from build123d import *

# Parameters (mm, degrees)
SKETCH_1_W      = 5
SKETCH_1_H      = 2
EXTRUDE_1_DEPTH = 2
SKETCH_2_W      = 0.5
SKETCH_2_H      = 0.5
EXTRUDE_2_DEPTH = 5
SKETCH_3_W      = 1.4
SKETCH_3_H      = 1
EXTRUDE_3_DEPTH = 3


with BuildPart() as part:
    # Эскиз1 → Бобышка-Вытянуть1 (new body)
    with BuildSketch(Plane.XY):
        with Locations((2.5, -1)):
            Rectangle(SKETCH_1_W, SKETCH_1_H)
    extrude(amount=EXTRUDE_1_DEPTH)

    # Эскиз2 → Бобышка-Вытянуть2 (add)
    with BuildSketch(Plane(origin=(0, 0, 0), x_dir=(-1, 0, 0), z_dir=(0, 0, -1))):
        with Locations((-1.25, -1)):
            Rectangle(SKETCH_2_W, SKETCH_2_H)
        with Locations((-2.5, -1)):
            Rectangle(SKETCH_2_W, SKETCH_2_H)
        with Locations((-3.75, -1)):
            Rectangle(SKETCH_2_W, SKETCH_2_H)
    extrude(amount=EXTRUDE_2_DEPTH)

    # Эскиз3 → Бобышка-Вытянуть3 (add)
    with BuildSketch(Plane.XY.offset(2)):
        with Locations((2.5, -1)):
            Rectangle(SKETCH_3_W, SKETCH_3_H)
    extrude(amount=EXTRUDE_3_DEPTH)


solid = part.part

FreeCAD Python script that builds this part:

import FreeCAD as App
import Part
import Sketcher

V = App.Vector
Q = App.Units.Quantity

doc = App.newDocument("Part")
body = doc.addObject("PartDesign::Body", "Body")

sketch1 = body.newObject("Sketcher::SketchObject", "Sketch")
sketch1.AttachmentSupport = (doc.getObject("XY_Plane"), [""])
sketch1.MapMode = "FlatFace"
sketch1.addGeometry([
    Part.LineSegment(V(0, 0, 0), V(0, -2, 0)),
    Part.LineSegment(V(0, -2, 0), V(5, -2, 0)),
    Part.LineSegment(V(5, -2, 0), V(5, 0, 0)),
    Part.LineSegment(V(5, 0, 0), V(0, 0, 0)),
], False)
sketch1.addConstraint([
    Sketcher.Constraint("Coincident", 0, 2, 1, 1),
    Sketcher.Constraint("Coincident", 1, 2, 2, 1),
    Sketcher.Constraint("Coincident", 2, 2, 3, 1),
    Sketcher.Constraint("Coincident", 3, 2, 0, 1),
    Sketcher.Constraint("Vertical", 0),
    Sketcher.Constraint("Horizontal", 1),
    Sketcher.Constraint("Vertical", 2),
    Sketcher.Constraint("Horizontal", 3),
    Sketcher.Constraint("Coincident", 3, 2, -1, 1),
    Sketcher.Constraint("DistanceX", 1, 1, 1, 2, Q("5 mm")),
    Sketcher.Constraint("DistanceY", 0, 2, 0, 1, Q("2 mm")),
])
pad1 = body.newObject("PartDesign::Pad", "Pad")
pad1.Profile = sketch1
pad1.Length = 2

sketch2 = body.newObject("Sketcher::SketchObject", "Sketch001")
sketch2.AttachmentSupport = (doc.getObject("XY_Plane"), [""])
sketch2.MapMode = "FlatFace"
sketch2.addGeometry([
    Part.LineSegment(V(1.5, -0.8, 0), V(1.5, -1.2, 0)),
    Part.LineSegment(V(1.5, -1.2, 0), V(1, -1.2, 0)),
    Part.LineSegment(V(1, -1.2, 0), V(1, -0.8, 0)),
    Part.LineSegment(V(1, -0.8, 0), V(1.5, -0.8, 0)),
    Part.LineSegment(V(2.8, -0.8, 0), V(2.8, -1.2, 0)),
    Part.LineSegment(V(2.8, -1.2, 0), V(2.2, -1.2, 0)),
    Part.LineSegment(V(2.2, -1.2, 0), V(2.2, -0.8, 0)),
    Part.LineSegment(V(2.2, -0.8, 0), V(2.8, -0.8, 0)),
    Part.LineSegment(V(4, -0.8, 0), V(4, -1.2, 0)),
    Part.LineSegment(V(4, -1.2, 0), V(3.5, -1.2, 0)),
    Part.LineSegment(V(3.5, -1.2, 0), V(3.5, -0.8, 0)),
    Part.LineSegment(V(3.5, -0.8, 0), V(4, -0.8, 0)),
], False)
sketch2.addConstraint([
    Sketcher.Constraint("Coincident", 0, 2, 1, 1),
    Sketcher.Constraint("Coincident", 1, 2, 2, 1),
    Sketcher.Constraint("Coincident", 2, 2, 3, 1),
    Sketcher.Constraint("Coincident", 3, 2, 0, 1),
    Sketcher.Constraint("Coincident", 4, 2, 5, 1),
    Sketcher.Constraint("Coincident", 5, 2, 6, 1),
    Sketcher.Constraint("Coincident", 6, 2, 7, 1),
    Sketcher.Constraint("Coincident", 7, 2, 4, 1),
    Sketcher.Constraint("Coincident", 8, 2, 9, 1),
    Sketcher.Constraint("Coincident", 9, 2, 10, 1),
    Sketcher.Constraint("Coincident", 10, 2, 11, 1),
    Sketcher.Constraint("Coincident", 11, 2, 8, 1),
    Sketcher.Constraint("Vertical", 0),
    Sketcher.Constraint("Horizontal", 1),
    Sketcher.Constraint("Vertical", 2),
    Sketcher.Constraint("Horizontal", 3),
    Sketcher.Constraint("Vertical", 4),
    Sketcher.Constraint("Horizontal", 5),
    Sketcher.Constraint("Vertical", 6),
    Sketcher.Constraint("Horizontal", 7),
    Sketcher.Constraint("Vertical", 8),
    Sketcher.Constraint("Horizontal", 9),
    Sketcher.Constraint("Vertical", 10),
    Sketcher.Constraint("Horizontal", 11),
    Sketcher.Constraint("Horizontal", 1, 2, 4, 2),
    Sketcher.Constraint("Horizontal", 3, 2, 6, 2),
    Sketcher.Constraint("Horizontal", 5, 2, 8, 2),
    Sketcher.Constraint("Horizontal", 7, 2, 10, 2),
    Sketcher.Constraint("Equal", 3, 5),
    Sketcher.Constraint("Equal", 7, 9),
    Sketcher.Constraint("Equal", 11, 0),
    Sketcher.Constraint("DistanceX", 1, 2, 1, 1, Q("0.5 mm")),
    Sketcher.Constraint("DistanceX", -1, 1, 1, 2, Q("1 mm")),
    Sketcher.Constraint("DistanceX", -1, 1, 8, 2, Q("4 mm")),
    Sketcher.Constraint("DistanceY", 0, 2, -1, 1, Q("1.25 mm")),
    Sketcher.Constraint("DistanceX", -1, 1, 4, 2, Q("2.75 mm")),
])
pad2 = body.newObject("PartDesign::Pad", "Pad001")
pad2.Profile = sketch2
pad2.Length = 5
pad2.Reversed = True

sketch3 = body.newObject("Sketcher::SketchObject", "Sketch002")
sketch3.AttachmentSupport = (doc.getObject("XY_Plane"), [""])
sketch3.MapMode = "FlatFace"
sketch3.AttachmentOffset = App.Placement(V(0, 0, 2), App.Rotation())
sketch3.addGeometry([
    Part.LineSegment(V(1.8, -0.5, 0), V(1.8, -1.5, 0)),
    Part.LineSegment(V(1.8, -1.5, 0), V(3.2, -1.5, 0)),
    Part.LineSegment(V(3.2, -1.5, 0), V(3.2, -0.5, 0)),
    Part.LineSegment(V(3.2, -0.5, 0), V(1.8, -0.5, 0)),
], False)
sketch3.addConstraint([
    Sketcher.Constraint("Coincident", 0, 2, 1, 1),
    Sketcher.Constraint("Coincident", 1, 2, 2, 1),
    Sketcher.Constraint("Coincident", 2, 2, 3, 1),
    Sketcher.Constraint("Coincident", 3, 2, 0, 1),
    Sketcher.Constraint("Vertical", 0),
    Sketcher.Constraint("Horizontal", 1),
    Sketcher.Constraint("Vertical", 2),
    Sketcher.Constraint("Horizontal", 3),
    Sketcher.Constraint("DistanceY", 0, 2, 0, 1, Q("1 mm")),
    Sketcher.Constraint("DistanceX", 1, 1, 1, 2, Q("1.4 mm")),
    Sketcher.Constraint("DistanceX", -1, 1, 0, 2, Q("1.8 mm")),
    Sketcher.Constraint("DistanceY", 0, 2, -1, 1, Q("1.5 mm")),
])
pad3 = body.newObject("PartDesign::Pad", "Pad002")
pad3.Profile = sketch3
pad3.Length = 3

doc.recompute()
